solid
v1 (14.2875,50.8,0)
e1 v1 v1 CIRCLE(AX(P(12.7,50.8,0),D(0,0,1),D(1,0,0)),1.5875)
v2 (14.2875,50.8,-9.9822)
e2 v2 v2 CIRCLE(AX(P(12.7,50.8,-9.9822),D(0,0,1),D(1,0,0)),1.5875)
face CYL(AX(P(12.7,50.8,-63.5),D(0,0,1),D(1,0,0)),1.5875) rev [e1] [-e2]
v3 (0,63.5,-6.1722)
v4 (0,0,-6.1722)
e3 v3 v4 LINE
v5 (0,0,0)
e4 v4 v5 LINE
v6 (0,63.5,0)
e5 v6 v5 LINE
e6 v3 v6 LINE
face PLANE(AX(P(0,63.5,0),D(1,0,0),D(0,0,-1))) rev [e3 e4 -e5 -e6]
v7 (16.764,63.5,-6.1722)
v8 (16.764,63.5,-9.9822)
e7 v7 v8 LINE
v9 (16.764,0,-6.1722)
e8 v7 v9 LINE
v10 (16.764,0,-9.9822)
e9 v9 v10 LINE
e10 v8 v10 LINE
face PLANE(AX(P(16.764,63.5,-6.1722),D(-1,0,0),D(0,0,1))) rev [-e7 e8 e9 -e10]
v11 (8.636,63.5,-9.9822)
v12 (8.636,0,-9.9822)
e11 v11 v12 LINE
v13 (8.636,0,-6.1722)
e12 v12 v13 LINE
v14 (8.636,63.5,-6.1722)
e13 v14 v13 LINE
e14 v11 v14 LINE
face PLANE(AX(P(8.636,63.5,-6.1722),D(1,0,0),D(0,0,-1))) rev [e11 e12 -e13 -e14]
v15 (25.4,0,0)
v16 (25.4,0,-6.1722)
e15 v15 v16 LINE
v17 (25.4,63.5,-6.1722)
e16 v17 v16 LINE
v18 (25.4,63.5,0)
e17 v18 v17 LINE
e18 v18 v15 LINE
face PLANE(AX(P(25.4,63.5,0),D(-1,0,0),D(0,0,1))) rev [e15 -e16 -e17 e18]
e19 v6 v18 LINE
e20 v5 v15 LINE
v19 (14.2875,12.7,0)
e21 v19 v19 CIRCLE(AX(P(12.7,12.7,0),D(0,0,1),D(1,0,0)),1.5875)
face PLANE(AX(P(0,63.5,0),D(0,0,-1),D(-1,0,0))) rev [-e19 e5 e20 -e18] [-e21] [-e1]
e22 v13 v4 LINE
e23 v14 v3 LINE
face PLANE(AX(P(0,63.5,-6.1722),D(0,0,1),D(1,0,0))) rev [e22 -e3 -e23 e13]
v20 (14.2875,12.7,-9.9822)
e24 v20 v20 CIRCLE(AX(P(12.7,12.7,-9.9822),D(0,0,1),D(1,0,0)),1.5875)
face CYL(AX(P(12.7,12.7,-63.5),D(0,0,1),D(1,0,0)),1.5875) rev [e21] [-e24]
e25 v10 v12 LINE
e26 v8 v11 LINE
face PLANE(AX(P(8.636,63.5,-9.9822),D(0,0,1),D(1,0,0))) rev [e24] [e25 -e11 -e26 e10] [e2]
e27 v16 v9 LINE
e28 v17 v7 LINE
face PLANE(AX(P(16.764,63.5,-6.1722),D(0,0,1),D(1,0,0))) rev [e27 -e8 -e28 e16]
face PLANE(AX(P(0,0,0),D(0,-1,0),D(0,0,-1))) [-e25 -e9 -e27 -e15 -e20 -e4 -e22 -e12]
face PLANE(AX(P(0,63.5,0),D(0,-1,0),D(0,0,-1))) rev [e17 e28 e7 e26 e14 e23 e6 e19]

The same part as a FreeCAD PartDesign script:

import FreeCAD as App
import Part
import Sketcher
Q = App.Units.Quantity

doc = App.newDocument("Part")
params = doc.addObject("Spreadsheet::Sheet", "Params")
for row, (alias, value) in enumerate([
    ("sketch1_width", "1 in"),
    ("sketch1_width2", "0.34 in"),
    ("sketch1_height", "0.15 in"),
    ("sketch1_height2", "0.243 in"),
    ("pad1_length", "2.5 in"),
    ("sketch2_diameter", "0.125 in"),
    ("pocket1_length", "2.5 in"),
], start=1):
    params.set(f"A{row}", alias)
    params.set(f"B{row}", "=" + value)
    params.setAlias(f"B{row}", alias)

body = doc.addObject("PartDesign::Body", "Body")

sketch1 = body.newObject("Sketcher::SketchObject", "Sketch")
sketch1.AttachmentSupport = (doc.getObject("XZ_Plane"), [""])
sketch1.MapMode = "FlatFace"
sketch1.addGeometry([
    Part.LineSegment(App.Vector(25.4, -6.2, 0), App.Vector(16.8, -6.2, 0)),
    Part.LineSegment(App.Vector(16.8, -6.2, 0), App.Vector(16.8, -10, 0)),
    Part.LineSegment(App.Vector(16.8, -10, 0), App.Vector(8.6, -10, 0)),
    Part.LineSegment(App.Vector(8.6, -10, 0), App.Vector(8.6, -6.2, 0)),
    Part.LineSegment(App.Vector(8.6, -6.2, 0), App.Vector(0, -6.2, 0)),
    Part.LineSegment(App.Vector(0, -6.2, 0), App.Vector(0, 0, 0)),
    Part.LineSegment(App.Vector(0, 0, 0), App.Vector(25.4, 0, 0)),
    Part.LineSegment(App.Vector(25.4, 0, 0), App.Vector(25.4, -6.2, 0)),
], False)
sketch1.addConstraint([
    Sketcher.Constraint("Coincident", 0, 2, 1, 1),
    Sketcher.Constraint("Coincident", 1, 2, 2, 1),
    Sketcher.Constraint("Coincident", 2, 2, 3, 1),
    Sketcher.Constraint("Coincident", 3, 2, 4, 1),
    Sketcher.Constraint("Coincident", 4, 2, 5, 1),
    Sketcher.Constraint("Coincident", 5, 2, 6, 1),
    Sketcher.Constraint("Coincident", 6, 2, 7, 1),
    Sketcher.Constraint("Coincident", 7, 2, 0, 1),
    Sketcher.Constraint("Horizontal", 0),
    Sketcher.Constraint("Vertical", 1),
    Sketcher.Constraint("Horizontal", 2),
    Sketcher.Constraint("Vertical", 3),
    Sketcher.Constraint("Horizontal", 4),
    Sketcher.Constraint("Vertical", 5),
    Sketcher.Constraint("Horizontal", 6),
    Sketcher.Constraint("Vertical", 7),
    Sketcher.Constraint("Coincident", 5, 2, -1, 1),
    Sketcher.Constraint("Horizontal", 0, 2, 3, 2),
    Sketcher.Constraint("Equal", 0, 4),
    Sketcher.Constraint("DistanceX", 6, 1, 6, 2, Q("1 in")),
    Sketcher.Constraint("DistanceX", 0, 2, 0, 1, Q("0.34 in")),
    Sketcher.Constraint("DistanceY", 1, 2, 1, 1, Q("0.15 in")),
    Sketcher.Constraint("DistanceY", 5, 1, 5, 2, Q("0.243 in")),
])
sketch1.setExpression("Constraints[19]", "Params.sketch1_width")
sketch1.setExpression("Constraints[20]", "Params.sketch1_width2")
sketch1.setExpression("Constraints[21]", "Params.sketch1_height")
sketch1.setExpression("Constraints[22]", "Params.sketch1_height2")
pad1 = body.newObject("PartDesign::Pad", "Pad")
pad1.Profile = sketch1
pad1.setExpression("Length", "Params.pad1_length")
pad1.Reversed = True

sketch2 = body.newObject("Sketcher::SketchObject", "Sketch001")
sketch2.AttachmentSupport = (doc.getObject("XY_Plane"), [""])
sketch2.MapMode = "FlatFace"
sketch2.addGeometry([
    Part.Circle(App.Vector(12.7, 50.8, 0), App.Vector(0, 0, 1), 1.6),
    Part.Circle(App.Vector(12.7, 12.7, 0), App.Vector(0, 0, 1), 1.6),
], False)
sketch2.addConstraint([
    Sketcher.Constraint("Equal", 0, 1),
    Sketcher.Constraint("Vertical", 0, 3, 1, 3),
    Sketcher.Constraint("Diameter", 0, Q("0.125 in")),
    Sketcher.Constraint("DistanceY", -1, 1, 0, 3, Q("2 in")),
    Sketcher.Constraint("DistanceX", -1, 1, 0, 3, Q("0.5 in")),
    Sketcher.Constraint("DistanceY", -1, 1, 1, 3, Q("0.5 in")),
])
sketch2.setExpression("Constraints[2]", "Params.sketch2_diameter")
pocket1 = body.newObject("PartDesign::Pocket", "Pocket")
pocket1.Profile = sketch2
pocket1.setExpression("Length", "Params.pocket1_length")

doc.recompute()
